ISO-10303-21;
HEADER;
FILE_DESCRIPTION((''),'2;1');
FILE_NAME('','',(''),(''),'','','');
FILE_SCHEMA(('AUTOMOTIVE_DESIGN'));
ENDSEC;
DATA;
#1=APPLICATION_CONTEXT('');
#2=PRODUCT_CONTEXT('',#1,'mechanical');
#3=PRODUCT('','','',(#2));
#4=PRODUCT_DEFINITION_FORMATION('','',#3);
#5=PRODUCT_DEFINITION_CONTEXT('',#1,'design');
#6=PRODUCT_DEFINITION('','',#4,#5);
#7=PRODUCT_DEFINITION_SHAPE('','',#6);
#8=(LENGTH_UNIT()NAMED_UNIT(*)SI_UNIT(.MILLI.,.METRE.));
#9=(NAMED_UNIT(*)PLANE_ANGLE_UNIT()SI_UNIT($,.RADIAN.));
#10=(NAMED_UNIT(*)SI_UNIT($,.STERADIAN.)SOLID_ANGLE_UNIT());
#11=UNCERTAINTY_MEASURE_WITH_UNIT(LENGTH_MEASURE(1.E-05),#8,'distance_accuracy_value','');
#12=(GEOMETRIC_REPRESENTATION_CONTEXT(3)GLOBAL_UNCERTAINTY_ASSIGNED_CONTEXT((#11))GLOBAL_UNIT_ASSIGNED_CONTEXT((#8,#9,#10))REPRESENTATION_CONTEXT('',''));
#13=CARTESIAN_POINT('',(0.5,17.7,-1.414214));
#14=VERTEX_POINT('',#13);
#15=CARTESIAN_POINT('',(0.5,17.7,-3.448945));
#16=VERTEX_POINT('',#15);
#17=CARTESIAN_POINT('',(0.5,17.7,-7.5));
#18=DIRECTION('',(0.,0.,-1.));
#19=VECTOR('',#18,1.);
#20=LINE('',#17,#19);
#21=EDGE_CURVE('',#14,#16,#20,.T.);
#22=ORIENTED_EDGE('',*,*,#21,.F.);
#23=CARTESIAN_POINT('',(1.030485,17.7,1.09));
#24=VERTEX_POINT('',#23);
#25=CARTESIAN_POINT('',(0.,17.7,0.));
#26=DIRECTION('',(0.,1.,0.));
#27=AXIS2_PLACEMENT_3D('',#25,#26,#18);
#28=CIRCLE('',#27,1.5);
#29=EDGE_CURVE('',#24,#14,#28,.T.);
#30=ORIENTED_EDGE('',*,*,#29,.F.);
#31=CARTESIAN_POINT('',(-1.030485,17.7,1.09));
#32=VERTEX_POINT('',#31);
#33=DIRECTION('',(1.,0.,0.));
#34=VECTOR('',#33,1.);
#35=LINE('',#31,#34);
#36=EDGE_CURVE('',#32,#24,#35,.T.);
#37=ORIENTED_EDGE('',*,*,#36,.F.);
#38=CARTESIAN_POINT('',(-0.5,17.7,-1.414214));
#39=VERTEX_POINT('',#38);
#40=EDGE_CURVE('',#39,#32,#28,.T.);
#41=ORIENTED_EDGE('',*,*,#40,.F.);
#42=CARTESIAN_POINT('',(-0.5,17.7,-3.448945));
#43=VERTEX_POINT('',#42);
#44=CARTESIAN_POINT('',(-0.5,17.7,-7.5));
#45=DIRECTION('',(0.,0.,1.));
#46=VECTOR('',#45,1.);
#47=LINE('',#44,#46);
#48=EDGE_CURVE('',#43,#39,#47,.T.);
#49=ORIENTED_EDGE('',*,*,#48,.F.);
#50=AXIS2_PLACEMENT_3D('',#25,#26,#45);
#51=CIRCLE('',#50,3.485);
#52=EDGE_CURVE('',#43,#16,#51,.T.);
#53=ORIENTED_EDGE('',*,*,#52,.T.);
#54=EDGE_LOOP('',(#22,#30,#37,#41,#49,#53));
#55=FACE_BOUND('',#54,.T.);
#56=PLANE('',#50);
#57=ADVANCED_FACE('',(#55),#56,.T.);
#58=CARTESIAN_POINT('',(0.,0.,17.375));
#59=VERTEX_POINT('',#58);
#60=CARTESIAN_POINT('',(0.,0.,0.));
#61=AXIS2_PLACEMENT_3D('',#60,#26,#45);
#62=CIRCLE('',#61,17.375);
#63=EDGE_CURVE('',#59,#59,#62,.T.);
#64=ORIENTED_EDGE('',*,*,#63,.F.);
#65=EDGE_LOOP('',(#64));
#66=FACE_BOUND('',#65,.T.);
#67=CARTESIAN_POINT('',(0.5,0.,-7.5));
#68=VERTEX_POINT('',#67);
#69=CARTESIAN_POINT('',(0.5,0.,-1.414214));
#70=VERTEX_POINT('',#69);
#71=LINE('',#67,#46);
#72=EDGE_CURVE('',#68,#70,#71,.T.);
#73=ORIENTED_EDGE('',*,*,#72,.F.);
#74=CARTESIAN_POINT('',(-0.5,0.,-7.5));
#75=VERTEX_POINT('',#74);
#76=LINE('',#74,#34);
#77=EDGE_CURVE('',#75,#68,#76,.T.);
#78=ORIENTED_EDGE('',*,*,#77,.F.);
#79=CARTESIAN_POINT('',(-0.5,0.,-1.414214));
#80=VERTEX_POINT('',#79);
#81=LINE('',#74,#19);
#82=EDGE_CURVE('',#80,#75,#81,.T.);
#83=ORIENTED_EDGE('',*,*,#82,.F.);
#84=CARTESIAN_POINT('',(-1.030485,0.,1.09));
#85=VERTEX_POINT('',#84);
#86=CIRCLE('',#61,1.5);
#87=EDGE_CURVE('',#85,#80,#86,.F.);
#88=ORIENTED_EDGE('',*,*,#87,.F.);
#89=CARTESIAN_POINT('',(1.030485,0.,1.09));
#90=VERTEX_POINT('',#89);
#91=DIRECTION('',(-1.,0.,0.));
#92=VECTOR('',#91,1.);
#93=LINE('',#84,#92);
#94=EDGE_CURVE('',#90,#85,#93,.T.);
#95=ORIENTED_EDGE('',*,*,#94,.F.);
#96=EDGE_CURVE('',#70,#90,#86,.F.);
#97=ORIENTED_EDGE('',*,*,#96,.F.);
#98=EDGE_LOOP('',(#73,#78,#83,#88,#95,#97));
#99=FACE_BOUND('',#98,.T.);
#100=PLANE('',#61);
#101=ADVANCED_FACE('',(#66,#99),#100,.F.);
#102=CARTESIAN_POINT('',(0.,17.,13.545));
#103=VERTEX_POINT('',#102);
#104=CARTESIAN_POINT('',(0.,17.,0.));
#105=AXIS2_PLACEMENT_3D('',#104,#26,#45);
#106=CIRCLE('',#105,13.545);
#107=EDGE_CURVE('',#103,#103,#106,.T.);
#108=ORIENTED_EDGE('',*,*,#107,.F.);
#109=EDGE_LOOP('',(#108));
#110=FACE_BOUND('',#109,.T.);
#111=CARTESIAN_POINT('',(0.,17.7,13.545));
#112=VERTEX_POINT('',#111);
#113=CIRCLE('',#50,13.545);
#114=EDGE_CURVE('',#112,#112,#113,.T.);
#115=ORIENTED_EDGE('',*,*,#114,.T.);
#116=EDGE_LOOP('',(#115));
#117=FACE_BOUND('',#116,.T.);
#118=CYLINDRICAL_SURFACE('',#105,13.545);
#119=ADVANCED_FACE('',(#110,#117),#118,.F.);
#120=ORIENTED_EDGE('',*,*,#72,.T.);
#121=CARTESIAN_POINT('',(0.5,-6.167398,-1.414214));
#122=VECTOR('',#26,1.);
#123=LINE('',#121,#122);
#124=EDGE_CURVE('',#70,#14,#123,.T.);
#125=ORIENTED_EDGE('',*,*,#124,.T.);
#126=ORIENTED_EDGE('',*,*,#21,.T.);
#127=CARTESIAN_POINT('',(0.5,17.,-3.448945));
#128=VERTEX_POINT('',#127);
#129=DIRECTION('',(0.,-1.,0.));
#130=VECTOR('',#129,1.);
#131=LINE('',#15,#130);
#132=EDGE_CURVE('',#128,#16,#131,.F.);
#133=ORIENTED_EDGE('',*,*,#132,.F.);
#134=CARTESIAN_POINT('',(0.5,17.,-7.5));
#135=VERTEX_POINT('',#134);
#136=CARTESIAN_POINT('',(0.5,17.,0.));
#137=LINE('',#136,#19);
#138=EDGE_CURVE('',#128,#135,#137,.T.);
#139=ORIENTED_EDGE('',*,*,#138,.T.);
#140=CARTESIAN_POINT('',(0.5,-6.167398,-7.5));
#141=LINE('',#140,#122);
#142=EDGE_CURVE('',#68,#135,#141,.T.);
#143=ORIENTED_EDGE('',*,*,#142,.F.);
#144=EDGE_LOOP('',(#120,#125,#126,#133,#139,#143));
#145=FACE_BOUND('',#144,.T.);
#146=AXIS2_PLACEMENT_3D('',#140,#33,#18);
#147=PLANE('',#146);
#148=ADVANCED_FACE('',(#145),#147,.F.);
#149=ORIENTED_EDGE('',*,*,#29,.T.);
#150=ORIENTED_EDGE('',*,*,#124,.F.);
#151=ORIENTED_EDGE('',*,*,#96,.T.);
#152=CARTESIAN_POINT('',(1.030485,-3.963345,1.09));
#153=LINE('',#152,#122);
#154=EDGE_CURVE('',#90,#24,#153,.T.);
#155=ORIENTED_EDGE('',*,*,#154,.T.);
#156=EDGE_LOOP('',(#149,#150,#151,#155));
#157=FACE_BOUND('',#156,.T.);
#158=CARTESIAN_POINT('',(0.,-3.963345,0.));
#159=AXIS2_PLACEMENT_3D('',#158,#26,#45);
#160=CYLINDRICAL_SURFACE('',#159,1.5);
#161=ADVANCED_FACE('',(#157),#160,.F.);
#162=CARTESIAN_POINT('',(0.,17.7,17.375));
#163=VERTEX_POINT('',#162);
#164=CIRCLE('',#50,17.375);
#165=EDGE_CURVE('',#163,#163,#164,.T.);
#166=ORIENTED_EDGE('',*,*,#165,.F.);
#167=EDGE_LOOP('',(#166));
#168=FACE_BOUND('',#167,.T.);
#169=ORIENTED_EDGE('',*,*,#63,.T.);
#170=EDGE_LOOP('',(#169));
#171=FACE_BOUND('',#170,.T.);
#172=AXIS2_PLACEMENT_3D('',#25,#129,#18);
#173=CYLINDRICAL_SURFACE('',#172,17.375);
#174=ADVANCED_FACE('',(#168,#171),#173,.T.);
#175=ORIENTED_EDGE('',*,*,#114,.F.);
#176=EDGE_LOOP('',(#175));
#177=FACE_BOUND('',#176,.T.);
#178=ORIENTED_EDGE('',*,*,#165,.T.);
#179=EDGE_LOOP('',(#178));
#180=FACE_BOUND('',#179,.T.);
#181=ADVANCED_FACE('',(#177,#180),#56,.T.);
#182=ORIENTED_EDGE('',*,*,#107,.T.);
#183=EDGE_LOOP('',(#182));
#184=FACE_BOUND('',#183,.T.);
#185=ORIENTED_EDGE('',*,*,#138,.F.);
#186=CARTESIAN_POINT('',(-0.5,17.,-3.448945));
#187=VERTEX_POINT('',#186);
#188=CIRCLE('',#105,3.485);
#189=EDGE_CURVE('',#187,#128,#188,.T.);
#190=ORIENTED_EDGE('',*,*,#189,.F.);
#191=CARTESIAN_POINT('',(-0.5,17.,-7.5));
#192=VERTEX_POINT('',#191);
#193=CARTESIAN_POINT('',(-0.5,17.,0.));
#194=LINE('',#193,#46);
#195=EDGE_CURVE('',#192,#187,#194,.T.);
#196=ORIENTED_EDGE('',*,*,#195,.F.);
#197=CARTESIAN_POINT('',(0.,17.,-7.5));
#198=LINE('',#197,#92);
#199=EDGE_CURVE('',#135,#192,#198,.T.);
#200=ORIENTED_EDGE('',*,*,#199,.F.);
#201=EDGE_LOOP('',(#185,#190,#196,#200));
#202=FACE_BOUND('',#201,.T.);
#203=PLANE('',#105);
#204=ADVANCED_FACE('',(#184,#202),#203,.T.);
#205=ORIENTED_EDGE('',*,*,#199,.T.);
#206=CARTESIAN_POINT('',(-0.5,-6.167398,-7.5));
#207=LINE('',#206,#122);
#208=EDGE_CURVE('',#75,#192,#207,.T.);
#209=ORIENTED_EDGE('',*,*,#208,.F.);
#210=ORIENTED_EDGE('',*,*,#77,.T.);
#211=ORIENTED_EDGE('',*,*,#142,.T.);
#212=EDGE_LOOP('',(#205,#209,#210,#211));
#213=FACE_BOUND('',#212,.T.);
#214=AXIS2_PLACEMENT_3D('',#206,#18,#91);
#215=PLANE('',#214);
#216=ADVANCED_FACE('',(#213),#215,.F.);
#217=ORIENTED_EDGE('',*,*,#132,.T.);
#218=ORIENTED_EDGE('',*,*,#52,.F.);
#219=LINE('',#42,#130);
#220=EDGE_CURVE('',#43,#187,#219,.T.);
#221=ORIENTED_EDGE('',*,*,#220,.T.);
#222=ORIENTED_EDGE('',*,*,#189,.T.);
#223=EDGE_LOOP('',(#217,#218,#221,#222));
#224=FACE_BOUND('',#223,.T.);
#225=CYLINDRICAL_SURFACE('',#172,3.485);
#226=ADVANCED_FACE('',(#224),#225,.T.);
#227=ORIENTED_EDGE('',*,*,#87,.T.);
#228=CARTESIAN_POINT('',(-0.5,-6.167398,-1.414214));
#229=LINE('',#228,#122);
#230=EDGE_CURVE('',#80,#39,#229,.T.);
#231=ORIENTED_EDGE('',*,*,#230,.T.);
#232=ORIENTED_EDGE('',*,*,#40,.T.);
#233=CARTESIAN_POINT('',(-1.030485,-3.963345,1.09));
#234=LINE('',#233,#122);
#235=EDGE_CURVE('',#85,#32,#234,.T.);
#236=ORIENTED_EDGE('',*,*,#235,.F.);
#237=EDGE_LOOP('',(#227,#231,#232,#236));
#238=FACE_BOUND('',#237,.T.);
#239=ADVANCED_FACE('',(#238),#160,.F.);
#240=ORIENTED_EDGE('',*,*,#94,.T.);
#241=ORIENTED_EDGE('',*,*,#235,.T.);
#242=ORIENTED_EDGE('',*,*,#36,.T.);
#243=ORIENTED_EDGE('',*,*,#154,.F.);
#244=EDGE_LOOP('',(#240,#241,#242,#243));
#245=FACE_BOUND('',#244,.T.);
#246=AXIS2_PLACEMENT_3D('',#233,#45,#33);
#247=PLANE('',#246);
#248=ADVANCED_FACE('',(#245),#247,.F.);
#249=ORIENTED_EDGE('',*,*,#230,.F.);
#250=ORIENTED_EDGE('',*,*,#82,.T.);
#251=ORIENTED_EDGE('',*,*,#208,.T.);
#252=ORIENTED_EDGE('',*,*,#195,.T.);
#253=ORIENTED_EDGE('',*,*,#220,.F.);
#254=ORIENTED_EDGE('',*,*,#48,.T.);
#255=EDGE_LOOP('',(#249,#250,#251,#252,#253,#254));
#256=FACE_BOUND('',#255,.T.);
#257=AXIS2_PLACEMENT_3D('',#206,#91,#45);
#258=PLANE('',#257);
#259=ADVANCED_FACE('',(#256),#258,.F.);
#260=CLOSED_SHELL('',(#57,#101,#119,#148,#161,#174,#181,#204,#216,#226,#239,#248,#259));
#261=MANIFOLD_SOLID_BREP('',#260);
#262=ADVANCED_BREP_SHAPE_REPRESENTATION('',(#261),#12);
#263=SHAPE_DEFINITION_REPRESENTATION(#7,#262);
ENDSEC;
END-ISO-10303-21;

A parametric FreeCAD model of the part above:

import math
import FreeCAD as App
import Part
import Sketcher

V = App.Vector

doc = App.newDocument("Part")
body = doc.addObject("PartDesign::Body", "Body")

# Sketch on XZ plane
sketch1 = doc.addObject("Sketcher::SketchObject", "Sketch")
body.addObject(sketch1)
sketch1.AttachmentSupport = (doc.XZ_Plane, [""])
sketch1.MapMode = "FlatFace"
sketch1.addGeometry(Part.Circle(V(0, 0, 0), V(0, 0, 1), 17), False)
sketch1.addConstraint([
    Sketcher.Constraint("Coincident", 0, 3, -1, 1),
    Sketcher.Constraint("Diameter", 0, 34.75),
])
pad1 = doc.addObject("PartDesign::Pad", "Pad")
body.addObject(pad1)
pad1.Profile = sketch1
pad1.Length = 17.7
pad1.Reversed = True

# Sketch on XZ plane
sketch2 = doc.addObject("Sketcher::SketchObject", "Sketch001")
body.addObject(sketch2)
sketch2.AttachmentSupport = (doc.XZ_Plane, [""])
sketch2.MapMode = "FlatFace"
sketch2.AttachmentOffset = App.Placement(V(0, 0, -17.7), App.Rotation())
sketch2.addGeometry(Part.Circle(V(0, 0, 0), V(0, 0, 1), 14), False)
sketch2.addConstraint([
    Sketcher.Constraint("Coincident", 0, 3, -1, 1),
    Sketcher.Constraint("Diameter", 0, 27.09),
])
pocket1 = doc.addObject("PartDesign::Pocket", "Pocket")
body.addObject(pocket1)
pocket1.Profile = sketch2
pocket1.Length = 0.7
pocket1.Reversed = True

# Sketch on XZ plane
sketch3 = doc.addObject("Sketcher::SketchObject", "Sketch002")
body.addObject(sketch3)
sketch3.AttachmentSupport = (doc.XZ_Plane, [""])
sketch3.MapMode = "FlatFace"
sketch3.AttachmentOffset = App.Placement(V(0, 0, -17), App.Rotation())
sketch3.addGeometry(Part.Circle(V(0, 0, 0), V(0, 0, 1), 3.5), False)
sketch3.addConstraint([
    Sketcher.Constraint("Coincident", 0, 3, -1, 1),
    Sketcher.Constraint("Diameter", 0, 6.97),
])
pad2 = doc.addObject("PartDesign::Pad", "Pad001")
body.addObject(pad2)
pad2.Profile = sketch3
pad2.Length = 0.7
pad2.Reversed = True

# Sketch on XZ plane
sketch4 = doc.addObject("Sketcher::SketchObject", "Sketch003")
body.addObject(sketch4)
sketch4.AttachmentSupport = (doc.XZ_Plane, [""])
sketch4.MapMode = "FlatFace"
sketch4.AttachmentOffset = App.Placement(V(0, 0, -17.7), App.Rotation())
sketch4.addGeometry([
    Part.LineSegment(V(-1, 1.1, 0), V(1, 1.1, 0)),
    Part.ArcOfCircle(Part.Circle(V(0, 0, 0), V(0, 0, 1), 1.5), math.radians(133), math.radians(407)),
], False)
sketch4.addConstraint([
    Sketcher.Constraint("Coincident", 0, 1, 1, 1),
    Sketcher.Constraint("Coincident", 1, 2, 0, 2),
    Sketcher.Constraint("Horizontal", 0),
    Sketcher.Constraint("Coincident", 1, 3, -1, 1),
    Sketcher.Constraint("Radius", 1, 1.5),
    Sketcher.Constraint("DistanceY", -1, 1, 0, 1, 1.09),
])
pocket2 = doc.addObject("PartDesign::Pocket", "Pocket001")
body.addObject(pocket2)
pocket2.Profile = sketch4
pocket2.Length = 17.7
pocket2.Reversed = True

# Sketch on XZ plane
sketch5 = doc.addObject("Sketcher::SketchObject", "Sketch004")
body.addObject(sketch5)
sketch5.AttachmentSupport = (doc.XZ_Plane, [""])
sketch5.MapMode = "FlatFace"
sketch5.AttachmentOffset = App.Placement(V(0, 0, -17.7), App.Rotation())
sketch5.addGeometry([
    Part.LineSegment(V(-0.5, -7.5, 0), V(-0.5, -1.4, 0)),
    Part.LineSegment(V(-0.5, -1.4, 0), V(0.5, -1.4, 0)),
    Part.LineSegment(V(0.5, -1.4, 0), V(0.5, -7.5, 0)),
    Part.LineSegment(V(0.5, -7.5, 0), V(-0.5, -7.5, 0)),
], False)
sketch5.addConstraint([
    Sketcher.Constraint("Coincident", 0, 2, 1, 1),
    Sketcher.Constraint("Coincident", 1, 2, 2, 1),
    Sketcher.Constraint("Coincident", 2, 2, 3, 1),
    Sketcher.Constraint("Coincident", 3, 2, 0, 1),
    Sketcher.Constraint("Vertical", 0),
    Sketcher.Constraint("Horizontal", 1),
    Sketcher.Constraint("Vertical", 2),
    Sketcher.Constraint("Horizontal", 3),
    Sketcher.Constraint("DistanceX", 1, 1, 1, 2, 1.0),
    Sketcher.Constraint("DistanceX", 0, 2, -1, 1, 0.5),
    Sketcher.Constraint("DistanceY", 2, 2, -1, 1, 7.5),
    Sketcher.Constraint("DistanceY", 0, 1, 0, 2, 6.085786),
])
pocket3 = doc.addObject("PartDesign::Pocket", "Pocket002")
body.addObject(pocket3)
pocket3.Profile = sketch5
pocket3.Length = 17.7
pocket3.Reversed = True

doc.recompute()
